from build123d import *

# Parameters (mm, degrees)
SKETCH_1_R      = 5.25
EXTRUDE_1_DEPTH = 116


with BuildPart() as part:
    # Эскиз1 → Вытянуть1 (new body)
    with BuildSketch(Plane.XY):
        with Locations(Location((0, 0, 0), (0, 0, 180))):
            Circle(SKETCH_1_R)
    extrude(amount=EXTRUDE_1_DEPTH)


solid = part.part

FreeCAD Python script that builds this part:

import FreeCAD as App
import Part
import Sketcher

doc = App.newDocument("Part")
params = doc.addObject("Spreadsheet::Sheet", "Params")
for row, (alias, value) in enumerate([
    ("sketch1_diameter", "10.5 mm"),
    ("pad1_length", "116 mm"),
], start=1):
    params.set(f"A{row}", alias)
    params.set(f"B{row}", "=" + value)
    params.setAlias(f"B{row}", alias)

body = doc.addObject("PartDesign::Body", "Body")

# Sketch on XY plane
sketch1 = body.newObject("Sketcher::SketchObject", "Sketch")
sketch1.AttachmentSupport = (doc.getObject("XY_Plane"), [""])
sketch1.MapMode = "FlatFace"
sketch1.addGeometry(Part.Circle(App.Vector(0, 0, 0), App.Vector(0, 0, 1), 5), False)
sketch1.addConstraint([
    Sketcher.Constraint("Coincident", 0, 3, -1, 1),
    Sketcher.Constraint("Diameter", 0, 10.5),
])
sketch1.setExpression("Constraints[1]", "Params.sketch1_diameter")
pad1 = body.newObject("PartDesign::Pad", "Pad")
pad1.Profile = sketch1
pad1.setExpression("Length", "Params.pad1_length")

doc.recompute()
